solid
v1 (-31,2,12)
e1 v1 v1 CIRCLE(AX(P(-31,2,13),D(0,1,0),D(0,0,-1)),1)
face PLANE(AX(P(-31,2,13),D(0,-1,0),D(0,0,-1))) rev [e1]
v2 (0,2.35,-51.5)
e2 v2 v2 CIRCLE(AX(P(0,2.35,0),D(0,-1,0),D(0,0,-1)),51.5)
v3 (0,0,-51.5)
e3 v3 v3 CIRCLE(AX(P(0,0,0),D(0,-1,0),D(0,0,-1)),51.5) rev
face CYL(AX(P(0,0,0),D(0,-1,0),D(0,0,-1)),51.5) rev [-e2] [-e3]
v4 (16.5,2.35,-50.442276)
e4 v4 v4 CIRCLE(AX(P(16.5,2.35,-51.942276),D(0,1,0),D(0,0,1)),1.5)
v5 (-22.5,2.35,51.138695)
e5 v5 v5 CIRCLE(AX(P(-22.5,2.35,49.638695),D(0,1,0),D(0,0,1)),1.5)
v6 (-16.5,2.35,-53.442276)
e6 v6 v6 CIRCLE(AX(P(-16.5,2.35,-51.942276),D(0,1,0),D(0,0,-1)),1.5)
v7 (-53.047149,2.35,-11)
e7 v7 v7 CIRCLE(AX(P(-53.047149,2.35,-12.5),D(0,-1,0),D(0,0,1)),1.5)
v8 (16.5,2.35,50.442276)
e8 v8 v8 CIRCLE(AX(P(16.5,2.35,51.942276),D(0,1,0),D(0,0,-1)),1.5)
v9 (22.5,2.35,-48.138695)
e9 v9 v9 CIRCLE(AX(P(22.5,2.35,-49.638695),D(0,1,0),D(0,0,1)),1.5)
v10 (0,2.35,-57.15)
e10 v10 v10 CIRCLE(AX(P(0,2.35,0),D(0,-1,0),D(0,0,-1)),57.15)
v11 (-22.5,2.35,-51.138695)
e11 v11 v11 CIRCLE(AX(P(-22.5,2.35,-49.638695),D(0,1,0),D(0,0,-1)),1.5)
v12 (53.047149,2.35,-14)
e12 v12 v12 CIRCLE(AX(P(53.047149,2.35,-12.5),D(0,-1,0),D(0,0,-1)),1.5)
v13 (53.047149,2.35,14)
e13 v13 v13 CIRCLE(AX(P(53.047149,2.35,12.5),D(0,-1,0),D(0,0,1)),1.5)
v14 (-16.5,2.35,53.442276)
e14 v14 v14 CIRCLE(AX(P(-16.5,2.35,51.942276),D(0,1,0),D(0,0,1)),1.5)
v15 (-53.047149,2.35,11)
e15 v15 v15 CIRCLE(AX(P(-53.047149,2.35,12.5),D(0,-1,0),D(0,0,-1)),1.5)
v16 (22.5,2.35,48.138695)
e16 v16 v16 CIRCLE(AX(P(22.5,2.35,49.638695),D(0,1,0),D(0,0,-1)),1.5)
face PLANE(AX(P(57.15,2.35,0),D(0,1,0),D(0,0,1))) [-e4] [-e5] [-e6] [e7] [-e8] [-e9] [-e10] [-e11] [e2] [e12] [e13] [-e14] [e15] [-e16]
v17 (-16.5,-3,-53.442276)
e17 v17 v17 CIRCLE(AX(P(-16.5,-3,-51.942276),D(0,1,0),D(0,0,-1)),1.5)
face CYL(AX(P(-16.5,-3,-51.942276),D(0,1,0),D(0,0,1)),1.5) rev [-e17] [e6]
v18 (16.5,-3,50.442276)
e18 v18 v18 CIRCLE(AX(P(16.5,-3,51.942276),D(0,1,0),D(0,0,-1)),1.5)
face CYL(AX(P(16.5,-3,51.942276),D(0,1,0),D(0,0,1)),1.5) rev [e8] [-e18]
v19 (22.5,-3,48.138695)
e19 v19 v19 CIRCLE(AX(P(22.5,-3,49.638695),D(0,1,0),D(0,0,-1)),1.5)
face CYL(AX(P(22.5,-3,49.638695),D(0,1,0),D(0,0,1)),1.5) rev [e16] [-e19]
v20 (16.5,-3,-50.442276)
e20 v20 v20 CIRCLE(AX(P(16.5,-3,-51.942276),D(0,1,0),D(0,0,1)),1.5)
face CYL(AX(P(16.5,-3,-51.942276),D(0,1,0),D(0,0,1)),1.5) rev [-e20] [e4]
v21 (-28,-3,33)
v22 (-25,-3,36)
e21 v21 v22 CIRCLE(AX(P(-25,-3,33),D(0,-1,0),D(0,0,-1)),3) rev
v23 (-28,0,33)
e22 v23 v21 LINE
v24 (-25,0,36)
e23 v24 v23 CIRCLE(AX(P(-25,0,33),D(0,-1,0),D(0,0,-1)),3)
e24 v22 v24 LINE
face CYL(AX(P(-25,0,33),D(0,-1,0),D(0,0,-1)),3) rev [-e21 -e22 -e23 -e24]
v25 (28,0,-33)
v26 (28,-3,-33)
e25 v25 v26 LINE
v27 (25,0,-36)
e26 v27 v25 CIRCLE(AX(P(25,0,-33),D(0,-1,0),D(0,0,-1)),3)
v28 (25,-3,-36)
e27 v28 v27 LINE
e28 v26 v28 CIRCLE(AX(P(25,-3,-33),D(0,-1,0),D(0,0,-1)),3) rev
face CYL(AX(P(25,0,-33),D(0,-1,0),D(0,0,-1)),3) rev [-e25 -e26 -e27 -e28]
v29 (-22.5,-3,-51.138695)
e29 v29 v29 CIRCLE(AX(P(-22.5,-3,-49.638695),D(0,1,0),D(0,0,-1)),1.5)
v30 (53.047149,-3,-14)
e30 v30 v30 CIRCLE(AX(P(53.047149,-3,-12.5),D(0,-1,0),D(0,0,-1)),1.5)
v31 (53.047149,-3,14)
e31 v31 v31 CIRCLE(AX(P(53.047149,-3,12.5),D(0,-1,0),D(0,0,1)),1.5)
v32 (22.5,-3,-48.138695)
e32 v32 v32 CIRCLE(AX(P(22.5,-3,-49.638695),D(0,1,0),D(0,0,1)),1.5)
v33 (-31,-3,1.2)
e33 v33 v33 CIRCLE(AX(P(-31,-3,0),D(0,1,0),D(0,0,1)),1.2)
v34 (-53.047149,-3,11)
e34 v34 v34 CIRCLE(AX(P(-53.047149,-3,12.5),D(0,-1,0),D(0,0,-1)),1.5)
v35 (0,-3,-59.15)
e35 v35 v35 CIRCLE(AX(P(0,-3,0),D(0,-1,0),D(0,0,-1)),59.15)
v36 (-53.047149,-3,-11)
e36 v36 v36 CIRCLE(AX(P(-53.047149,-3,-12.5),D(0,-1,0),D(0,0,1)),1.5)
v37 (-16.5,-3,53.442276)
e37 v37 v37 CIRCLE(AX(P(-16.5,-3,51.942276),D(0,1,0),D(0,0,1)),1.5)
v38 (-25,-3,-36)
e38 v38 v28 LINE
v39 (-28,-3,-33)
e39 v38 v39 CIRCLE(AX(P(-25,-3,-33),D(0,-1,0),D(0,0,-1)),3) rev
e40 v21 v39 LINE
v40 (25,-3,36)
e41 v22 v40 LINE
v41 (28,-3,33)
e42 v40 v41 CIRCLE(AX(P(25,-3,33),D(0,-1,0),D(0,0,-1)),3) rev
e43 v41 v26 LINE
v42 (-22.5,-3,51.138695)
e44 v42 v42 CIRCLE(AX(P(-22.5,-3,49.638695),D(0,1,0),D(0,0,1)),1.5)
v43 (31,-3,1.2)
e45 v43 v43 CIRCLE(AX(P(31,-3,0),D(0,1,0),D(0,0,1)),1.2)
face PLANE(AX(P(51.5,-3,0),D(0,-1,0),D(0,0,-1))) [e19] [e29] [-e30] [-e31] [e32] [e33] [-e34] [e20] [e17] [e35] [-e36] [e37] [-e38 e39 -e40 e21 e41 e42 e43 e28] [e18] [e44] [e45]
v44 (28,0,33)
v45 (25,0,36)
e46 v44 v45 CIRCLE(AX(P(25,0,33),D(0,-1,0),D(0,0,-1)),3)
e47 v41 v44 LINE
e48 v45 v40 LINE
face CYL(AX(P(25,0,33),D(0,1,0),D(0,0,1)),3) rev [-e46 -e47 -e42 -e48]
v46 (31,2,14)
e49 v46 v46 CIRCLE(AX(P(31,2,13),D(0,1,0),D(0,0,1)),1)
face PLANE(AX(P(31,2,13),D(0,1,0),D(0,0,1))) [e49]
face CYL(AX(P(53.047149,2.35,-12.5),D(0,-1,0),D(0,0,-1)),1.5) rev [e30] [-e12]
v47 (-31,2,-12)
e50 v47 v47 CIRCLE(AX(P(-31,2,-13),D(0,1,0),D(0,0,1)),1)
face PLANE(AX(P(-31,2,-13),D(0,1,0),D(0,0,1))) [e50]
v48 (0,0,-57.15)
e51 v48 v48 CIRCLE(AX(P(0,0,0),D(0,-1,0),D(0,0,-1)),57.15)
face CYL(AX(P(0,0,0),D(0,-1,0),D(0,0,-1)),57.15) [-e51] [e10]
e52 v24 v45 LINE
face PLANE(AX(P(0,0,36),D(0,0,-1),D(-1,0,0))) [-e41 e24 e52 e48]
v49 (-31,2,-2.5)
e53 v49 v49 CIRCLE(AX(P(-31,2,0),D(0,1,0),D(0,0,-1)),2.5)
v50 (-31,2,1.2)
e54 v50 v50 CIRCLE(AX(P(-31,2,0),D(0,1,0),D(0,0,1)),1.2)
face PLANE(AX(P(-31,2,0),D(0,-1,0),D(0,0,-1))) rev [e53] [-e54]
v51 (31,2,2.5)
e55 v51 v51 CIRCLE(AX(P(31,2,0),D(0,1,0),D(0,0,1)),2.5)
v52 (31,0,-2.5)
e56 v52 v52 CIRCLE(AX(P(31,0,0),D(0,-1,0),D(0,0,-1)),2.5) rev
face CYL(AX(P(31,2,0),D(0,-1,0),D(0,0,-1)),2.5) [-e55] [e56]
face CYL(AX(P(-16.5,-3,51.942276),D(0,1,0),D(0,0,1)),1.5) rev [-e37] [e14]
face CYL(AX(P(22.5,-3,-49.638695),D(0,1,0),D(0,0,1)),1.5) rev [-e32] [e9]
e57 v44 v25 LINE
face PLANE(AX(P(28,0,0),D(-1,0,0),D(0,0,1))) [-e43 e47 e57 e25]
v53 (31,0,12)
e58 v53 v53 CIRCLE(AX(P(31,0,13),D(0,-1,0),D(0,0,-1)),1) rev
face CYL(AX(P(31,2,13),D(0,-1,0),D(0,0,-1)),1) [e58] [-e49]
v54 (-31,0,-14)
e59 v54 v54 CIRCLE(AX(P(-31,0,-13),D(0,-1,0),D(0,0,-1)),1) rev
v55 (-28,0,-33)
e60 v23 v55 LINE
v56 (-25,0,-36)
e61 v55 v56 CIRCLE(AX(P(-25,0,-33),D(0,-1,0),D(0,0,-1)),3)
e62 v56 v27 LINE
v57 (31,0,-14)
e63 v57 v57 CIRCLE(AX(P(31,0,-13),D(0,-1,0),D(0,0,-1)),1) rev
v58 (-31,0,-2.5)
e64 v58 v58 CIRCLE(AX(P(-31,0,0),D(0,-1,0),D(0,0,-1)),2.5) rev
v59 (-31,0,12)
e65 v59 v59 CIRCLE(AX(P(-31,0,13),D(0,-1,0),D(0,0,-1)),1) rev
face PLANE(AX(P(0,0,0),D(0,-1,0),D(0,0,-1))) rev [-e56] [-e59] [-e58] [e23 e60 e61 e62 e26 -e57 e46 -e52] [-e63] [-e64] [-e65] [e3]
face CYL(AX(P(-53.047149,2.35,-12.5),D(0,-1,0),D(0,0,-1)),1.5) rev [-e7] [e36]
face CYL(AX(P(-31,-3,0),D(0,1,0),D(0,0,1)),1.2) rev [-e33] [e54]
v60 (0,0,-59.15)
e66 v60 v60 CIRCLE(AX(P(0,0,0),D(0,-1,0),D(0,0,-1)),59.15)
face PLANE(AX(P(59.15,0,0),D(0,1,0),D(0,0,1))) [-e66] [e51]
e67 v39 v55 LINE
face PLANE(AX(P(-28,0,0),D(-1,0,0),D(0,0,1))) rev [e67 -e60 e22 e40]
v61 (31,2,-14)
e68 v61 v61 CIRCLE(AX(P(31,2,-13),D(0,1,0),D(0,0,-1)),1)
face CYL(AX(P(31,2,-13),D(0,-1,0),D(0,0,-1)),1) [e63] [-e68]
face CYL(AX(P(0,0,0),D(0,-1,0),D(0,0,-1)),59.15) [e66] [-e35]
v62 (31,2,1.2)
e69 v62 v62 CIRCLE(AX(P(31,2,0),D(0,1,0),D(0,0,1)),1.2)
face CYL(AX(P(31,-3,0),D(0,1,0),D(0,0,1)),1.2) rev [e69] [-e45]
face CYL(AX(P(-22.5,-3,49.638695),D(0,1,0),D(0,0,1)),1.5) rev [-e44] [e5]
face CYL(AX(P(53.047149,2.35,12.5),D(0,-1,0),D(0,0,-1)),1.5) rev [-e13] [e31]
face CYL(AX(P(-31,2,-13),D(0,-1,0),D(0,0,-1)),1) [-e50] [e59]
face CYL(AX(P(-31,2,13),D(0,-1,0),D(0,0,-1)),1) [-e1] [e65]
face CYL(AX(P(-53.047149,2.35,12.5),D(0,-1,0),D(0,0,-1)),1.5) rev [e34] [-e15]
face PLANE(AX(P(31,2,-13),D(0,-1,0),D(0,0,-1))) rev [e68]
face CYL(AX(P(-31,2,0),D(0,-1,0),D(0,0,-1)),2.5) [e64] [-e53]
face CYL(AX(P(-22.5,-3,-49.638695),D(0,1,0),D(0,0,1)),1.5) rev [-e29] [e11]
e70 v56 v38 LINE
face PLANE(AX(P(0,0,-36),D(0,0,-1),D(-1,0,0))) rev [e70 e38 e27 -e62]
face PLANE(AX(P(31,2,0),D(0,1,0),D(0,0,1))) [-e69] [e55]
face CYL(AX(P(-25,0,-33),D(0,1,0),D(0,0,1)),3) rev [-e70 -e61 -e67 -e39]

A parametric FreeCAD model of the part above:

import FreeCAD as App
import Part
import Sketcher
from FreeCAD import Vector
Q = App.Units.Quantity


def edges_at(feature, points):
    """Names of the edges that pass closest to the given points."""
    edges = feature.Shape.Edges
    near = lambda p: min(range(len(edges)), key=lambda i: edges[i].distToShape(Part.Vertex(*p))[0])
    return sorted({f"Edge{near(p) + 1}" for p in points})


def add_polygon(sketch, points):
    """Adds a closed chain of lines whose ends are joined by coincident constraints."""
    first, n = sketch.GeometryCount, len(points)
    for a, b in zip(points, points[1:] + points[:1]):
        sketch.addGeometry(Part.LineSegment(App.Vector(*a, 0), App.Vector(*b, 0)), False)
    for i in range(n):
        sketch.addConstraint(Sketcher.Constraint("Coincident", first + i, 2, first + (i + 1) % n, 1))

doc = App.newDocument("Part")
params = doc.addObject("Spreadsheet::Sheet", "Params")
for row, (alias, value) in enumerate([
    ("sketch1_width", "2 mm"),
    ("sketch1_height", "3 mm"),
    ("sketch1_width2", "7.65 mm"),
    ("sketch1_height2", "5.35 mm"),
    ("revolution_angle", "360 deg"),
    ("sketch2_diameter", "3 mm"),
    ("sketch3_diameter", "103 mm"),
    ("sketch3_width", "56 mm"),
    ("sketch3_height", "72 mm"),
    ("pad1_length", "3 mm"),
    ("sketch4_diameter", "2 mm"),
    ("sketch4_diameter2", "5 mm"),
    ("pad2_length", "2 mm"),
    ("sketch5_diameter", "2.4 mm"),
    ("fillet_radius", "3 mm"),
    ("sketch6_diameter", "3 mm"),
], start=1):
    params.set(f"A{row}", alias)
    params.set(f"B{row}", "=" + value)
    params.setAlias(f"B{row}", alias)

body = doc.addObject("PartDesign::Body", "Body")

# Sketch on XY plane
sketch1 = body.newObject("Sketcher::SketchObject", "Sketch")
sketch1.AttachmentSupport = (doc.getObject("XY_Plane"), [""])
sketch1.MapMode = "FlatFace"
add_polygon(sketch1, [(51.5, 2.4), (51.5, -3), (59.1, -3), (59.1, 0), (57.1, 0), (57.1, 2.4)])  # lines 0-5
sketch1.addConstraint([
    Sketcher.Constraint("Vertical", 0),
    Sketcher.Constraint("Horizontal", 1),
    Sketcher.Constraint("Vertical", 2),
    Sketcher.Constraint("Horizontal", 3),
    Sketcher.Constraint("Vertical", 4),
    Sketcher.Constraint("Horizontal", 5),
    Sketcher.Constraint("PointOnObject", 2, 2, -1),
    Sketcher.Constraint("DistanceX", 3, 2, 3, 1, Q("2 mm")),
    Sketcher.Constraint("DistanceY", 2, 1, 2, 2, Q("3 mm")),
    Sketcher.Constraint("DistanceX", 1, 1, 1, 2, Q("7.65 mm")),
    Sketcher.Constraint("DistanceY", 0, 2, 0, 1, Q("5.35 mm")),
    Sketcher.Constraint("DistanceX", -1, 1, 0, 2, Q("51.5 mm")),
])
sketch1.setExpression("Constraints[13]", "Params.sketch1_width")
sketch1.setExpression("Constraints[14]", "Params.sketch1_height")
sketch1.setExpression("Constraints[15]", "Params.sketch1_width2")
sketch1.setExpression("Constraints[16]", "Params.sketch1_height2")
revolution = body.newObject("PartDesign::Revolution", "Revolution")
revolution.Profile = sketch1
revolution.ReferenceAxis = (sketch1, ["V_Axis"])
revolution.setExpression("Angle", "Params.revolution_angle")

# Sketch on XZ plane
sketch2 = body.newObject("Sketcher::SketchObject", "Sketch001")
sketch2.AttachmentSupport = (doc.getObject("XZ_Plane"), [""])
sketch2.MapMode = "FlatFace"
sketch2.AttachmentOffset = App.Placement(Vector(0, 0, -2.35), App.Rotation())
sketch2.addGeometry([
    Part.Circle(Vector(-16.5, 51.9, 0), Vector(0, 0, 1), 1.5),  # 0
    Part.Circle(Vector(-22.5, 49.6, 0), Vector(0, 0, 1), 1.5),  # 1
    Part.Circle(Vector(-22.5, -49.6, 0), Vector(0, 0, 1), 1.5),  # 2
    Part.Circle(Vector(-16.5, -51.9, 0), Vector(0, 0, 1), 1.5),  # 3
    Part.Circle(Vector(16.5, -51.9, 0), Vector(0, 0, 1), 1.5),  # 4
    Part.Circle(Vector(22.5, -49.6, 0), Vector(0, 0, 1), 1.5),  # 5
    Part.Circle(Vector(22.5, 49.6, 0), Vector(0, 0, 1), 1.5),  # 6
    Part.Circle(Vector(16.5, 51.9, 0), Vector(0, 0, 1), 1.5),  # 7
], False)
sketch2.addConstraint([
    Sketcher.Constraint("Equal", 0, 1),
    Sketcher.Constraint("Equal", 1, 2),
    Sketcher.Constraint("Equal", 2, 3),
    Sketcher.Constraint("Equal", 3, 4),
    Sketcher.Constraint("Equal", 4, 5),
    Sketcher.Constraint("Equal", 5, 6),
    Sketcher.Constraint("Equal", 6, 7),
    Sketcher.Constraint("Symmetric", 0, 3, 4, 3, -1, 1),
    Sketcher.Constraint("Symmetric", 1, 3, 5, 3, -1, 1),
    Sketcher.Constraint("Symmetric", 2, 3, 6, 3, -1, 1),
    Sketcher.Constraint("Symmetric", 3, 3, 7, 3, -1, 1),
    Sketcher.Constraint("Symmetric", 3, 3, 4, 3, -2),
    Sketcher.Constraint("Symmetric", 2, 3, 5, 3, -2),
    Sketcher.Constraint("Diameter", 0, Q("3 mm")),
    Sketcher.Constraint("DistanceX", 1, 3, 0, 3, Q("6 mm")),
    Sketcher.Constraint("DistanceX", 3, 3, 4, 3, Q("33 mm")),
    Sketcher.Constraint("DistanceY", 1, 3, 0, 3, Q("2.303581 mm")),
    Sketcher.Constraint("DistanceY", 2, 3, 1, 3, Q("99.277389 mm")),
])
sketch2.setExpression("Constraints[13]", "Params.sketch2_diameter")
pocket1 = body.newObject("PartDesign::Pocket", "Pocket")
pocket1.Profile = sketch2
pocket1.Type = "ThroughAll"
pocket1.Reversed = True

# Sketch on XZ plane
sketch3 = body.newObject("Sketcher::SketchObject", "Sketch002")
sketch3.AttachmentSupport = (doc.getObject("XZ_Plane"), [""])
sketch3.MapMode = "FlatFace"
sketch3.AttachmentOffset = App.Placement(Vector(0, 0, 3), App.Rotation())
sketch3.addGeometry(Part.Circle(Vector(0, 0, 0), Vector(0, 0, 1), 52), False)  # 0
add_polygon(sketch3, [(28, -36), (-28, -36), (-28, 36), (28, 36)])  # lines 1-4
sketch3.addConstraint([
    Sketcher.Constraint("Horizontal", 1),
    Sketcher.Constraint("Vertical", 2),
    Sketcher.Constraint("Horizontal", 3),
    Sketcher.Constraint("Vertical", 4),
    Sketcher.Constraint("Coincident", 0, 3, -1, 1),
    Sketcher.Constraint("Symmetric", 1, 2, 3, 2, -1, 1),
    Sketcher.Constraint("Diameter", 0, Q("103 mm")),
    Sketcher.Constraint("DistanceX", 1, 2, 1, 1, Q("56 mm")),
    Sketcher.Constraint("DistanceY", 2, 1, 2, 2, Q("72 mm")),
])
sketch3.setExpression("Constraints[10]", "Params.sketch3_diameter")
sketch3.setExpression("Constraints[11]", "Params.sketch3_width")
sketch3.setExpression("Constraints[12]", "Params.sketch3_height")
pad1 = body.newObject("PartDesign::Pad", "Pad")
pad1.Profile = sketch3
pad1.setExpression("Length", "Params.pad1_length")
pad1.Reversed = True

# Sketch on XZ plane
sketch4 = body.newObject("Sketcher::SketchObject", "Sketch003")
sketch4.AttachmentSupport = (doc.getObject("XZ_Plane"), [""])
sketch4.MapMode = "FlatFace"
sketch4.addGeometry([
    Part.Circle(Vector(31, 13, 0), Vector(0, 0, 1), 1),  # 0
    Part.Circle(Vector(-31, 13, 0), Vector(0, 0, 1), 1),  # 1
    Part.Circle(Vector(-31, -13, 0), Vector(0, 0, 1), 1),  # 2
    Part.Circle(Vector(31, -13, 0), Vector(0, 0, 1), 1),  # 3
    Part.Circle(Vector(31, 0, 0), Vector(0, 0, 1), 2.5),  # 4
    Part.Circle(Vector(-31, 0, 0), Vector(0, 0, 1), 2.5),  # 5
], False)
sketch4.addConstraint([
    Sketcher.Constraint("Equal", 0, 1),
    Sketcher.Constraint("Equal", 1, 2),
    Sketcher.Constraint("Equal", 2, 3),
    Sketcher.Constraint("Equal", 4, 5),
    Sketcher.Constraint("Symmetric", 0, 3, 2, 3, -1, 1),
    Sketcher.Constraint("Symmetric", 1, 3, 3, 3, -1, 1),
    Sketcher.Constraint("Symmetric", 4, 3, 5, 3, -1, 1),
    Sketcher.Constraint("Symmetric", 0, 3, 1, 3, -2),
    Sketcher.Constraint("PointOnObject", 4, 3, -1),
    Sketcher.Constraint("Vertical", 3, 3, 4, 3),
    Sketcher.Constraint("Diameter", 0, Q("2 mm")),
    Sketcher.Constraint("Diameter", 4, Q("5 mm")),
    Sketcher.Constraint("DistanceX", -1, 1, 0, 3, Q("31 mm")),
    Sketcher.Constraint("DistanceY", -1, 1, 0, 3, Q("13 mm")),
])
sketch4.setExpression("Constraints[10]", "Params.sketch4_diameter")
sketch4.setExpression("Constraints[11]", "Params.sketch4_diameter2")
pad2 = body.newObject("PartDesign::Pad", "Pad001")
pad2.Profile = sketch4
pad2.setExpression("Length", "Params.pad2_length")
pad2.Reversed = True

# Sketch on XZ plane
sketch5 = body.newObject("Sketcher::SketchObject", "Sketch004")
sketch5.AttachmentSupport = (doc.getObject("XZ_Plane"), [""])
sketch5.MapMode = "FlatFace"
sketch5.AttachmentOffset = App.Placement(Vector(0, 0, -2), App.Rotation())
sketch5.addGeometry([
    Part.Circle(Vector(31, 0, 0), Vector(0, 0, 1), 1.2),
    Part.Circle(Vector(-31, 0, 0), Vector(0, 0, 1), 1.2),
], False)
sketch5.addConstraint([
    Sketcher.Constraint("Equal", 0, 1),
    Sketcher.Constraint("Symmetric", 0, 3, 1, 3, -1, 1),
    Sketcher.Constraint("PointOnObject", 0, 3, -1),
    Sketcher.Constraint("Diameter", 0, Q("2.4 mm")),
    Sketcher.Constraint("DistanceX", -1, 1, 0, 3, Q("31 mm")),
])
sketch5.setExpression("Constraints[3]", "Params.sketch5_diameter")
pocket2 = body.newObject("PartDesign::Pocket", "Pocket001")
pocket2.Profile = sketch5
pocket2.Type = "ThroughAll"
pocket2.Reversed = True
doc.recompute()

fillet = body.newObject("PartDesign::Fillet", "Fillet")
fillet.Base = (pocket2, edges_at(pocket2, [
    (-28, -1.5, -36),
    (28, -1.5, -36),
    (28, -1.5, 36),
    (-28, -1.5, 36),
]))
fillet.setExpression("Radius", "Params.fillet_radius")

# Sketch on XZ plane
sketch6 = body.newObject("Sketcher::SketchObject", "Sketch005")
sketch6.AttachmentSupport = (doc.getObject("XZ_Plane"), [""])
sketch6.MapMode = "FlatFace"
sketch6.AttachmentOffset = App.Placement(Vector(0, 0, 3), App.Rotation())
sketch6.addGeometry([
    Part.Circle(Vector(-53, 12.5, 0), Vector(0, 0, 1), 1.5),
    Part.Circle(Vector(53, 12.5, 0), Vector(0, 0, 1), 1.5),
    Part.Circle(Vector(53, -12.5, 0), Vector(0, 0, 1), 1.5),
    Part.Circle(Vector(-53, -12.5, 0), Vector(0, 0, 1), 1.5),
], False)
sketch6.addConstraint([
    Sketcher.Constraint("Equal", 0, 1),
    Sketcher.Constraint("Equal", 1, 2),
    Sketcher.Constraint("Equal", 2, 3),
    Sketcher.Constraint("Symmetric", 0, 3, 2, 3, -1, 1),
    Sketcher.Constraint("Symmetric", 1, 3, 3, 3, -1, 1),
    Sketcher.Constraint("Symmetric", 0, 3, 1, 3, -2),
    Sketcher.Constraint("Diameter", 0, Q("3 mm")),
    Sketcher.Constraint("DistanceY", 2, 3, 1, 3, Q("25 mm")),
    Sketcher.Constraint("DistanceX", 0, 3, -1, 1, Q("53.047149 mm")),
])
sketch6.setExpression("Constraints[6]", "Params.sketch6_diameter")
pocket3 = body.newObject("PartDesign::Pocket", "Pocket002")
pocket3.Profile = sketch6
pocket3.Type = "ThroughAll"

doc.recompute()
